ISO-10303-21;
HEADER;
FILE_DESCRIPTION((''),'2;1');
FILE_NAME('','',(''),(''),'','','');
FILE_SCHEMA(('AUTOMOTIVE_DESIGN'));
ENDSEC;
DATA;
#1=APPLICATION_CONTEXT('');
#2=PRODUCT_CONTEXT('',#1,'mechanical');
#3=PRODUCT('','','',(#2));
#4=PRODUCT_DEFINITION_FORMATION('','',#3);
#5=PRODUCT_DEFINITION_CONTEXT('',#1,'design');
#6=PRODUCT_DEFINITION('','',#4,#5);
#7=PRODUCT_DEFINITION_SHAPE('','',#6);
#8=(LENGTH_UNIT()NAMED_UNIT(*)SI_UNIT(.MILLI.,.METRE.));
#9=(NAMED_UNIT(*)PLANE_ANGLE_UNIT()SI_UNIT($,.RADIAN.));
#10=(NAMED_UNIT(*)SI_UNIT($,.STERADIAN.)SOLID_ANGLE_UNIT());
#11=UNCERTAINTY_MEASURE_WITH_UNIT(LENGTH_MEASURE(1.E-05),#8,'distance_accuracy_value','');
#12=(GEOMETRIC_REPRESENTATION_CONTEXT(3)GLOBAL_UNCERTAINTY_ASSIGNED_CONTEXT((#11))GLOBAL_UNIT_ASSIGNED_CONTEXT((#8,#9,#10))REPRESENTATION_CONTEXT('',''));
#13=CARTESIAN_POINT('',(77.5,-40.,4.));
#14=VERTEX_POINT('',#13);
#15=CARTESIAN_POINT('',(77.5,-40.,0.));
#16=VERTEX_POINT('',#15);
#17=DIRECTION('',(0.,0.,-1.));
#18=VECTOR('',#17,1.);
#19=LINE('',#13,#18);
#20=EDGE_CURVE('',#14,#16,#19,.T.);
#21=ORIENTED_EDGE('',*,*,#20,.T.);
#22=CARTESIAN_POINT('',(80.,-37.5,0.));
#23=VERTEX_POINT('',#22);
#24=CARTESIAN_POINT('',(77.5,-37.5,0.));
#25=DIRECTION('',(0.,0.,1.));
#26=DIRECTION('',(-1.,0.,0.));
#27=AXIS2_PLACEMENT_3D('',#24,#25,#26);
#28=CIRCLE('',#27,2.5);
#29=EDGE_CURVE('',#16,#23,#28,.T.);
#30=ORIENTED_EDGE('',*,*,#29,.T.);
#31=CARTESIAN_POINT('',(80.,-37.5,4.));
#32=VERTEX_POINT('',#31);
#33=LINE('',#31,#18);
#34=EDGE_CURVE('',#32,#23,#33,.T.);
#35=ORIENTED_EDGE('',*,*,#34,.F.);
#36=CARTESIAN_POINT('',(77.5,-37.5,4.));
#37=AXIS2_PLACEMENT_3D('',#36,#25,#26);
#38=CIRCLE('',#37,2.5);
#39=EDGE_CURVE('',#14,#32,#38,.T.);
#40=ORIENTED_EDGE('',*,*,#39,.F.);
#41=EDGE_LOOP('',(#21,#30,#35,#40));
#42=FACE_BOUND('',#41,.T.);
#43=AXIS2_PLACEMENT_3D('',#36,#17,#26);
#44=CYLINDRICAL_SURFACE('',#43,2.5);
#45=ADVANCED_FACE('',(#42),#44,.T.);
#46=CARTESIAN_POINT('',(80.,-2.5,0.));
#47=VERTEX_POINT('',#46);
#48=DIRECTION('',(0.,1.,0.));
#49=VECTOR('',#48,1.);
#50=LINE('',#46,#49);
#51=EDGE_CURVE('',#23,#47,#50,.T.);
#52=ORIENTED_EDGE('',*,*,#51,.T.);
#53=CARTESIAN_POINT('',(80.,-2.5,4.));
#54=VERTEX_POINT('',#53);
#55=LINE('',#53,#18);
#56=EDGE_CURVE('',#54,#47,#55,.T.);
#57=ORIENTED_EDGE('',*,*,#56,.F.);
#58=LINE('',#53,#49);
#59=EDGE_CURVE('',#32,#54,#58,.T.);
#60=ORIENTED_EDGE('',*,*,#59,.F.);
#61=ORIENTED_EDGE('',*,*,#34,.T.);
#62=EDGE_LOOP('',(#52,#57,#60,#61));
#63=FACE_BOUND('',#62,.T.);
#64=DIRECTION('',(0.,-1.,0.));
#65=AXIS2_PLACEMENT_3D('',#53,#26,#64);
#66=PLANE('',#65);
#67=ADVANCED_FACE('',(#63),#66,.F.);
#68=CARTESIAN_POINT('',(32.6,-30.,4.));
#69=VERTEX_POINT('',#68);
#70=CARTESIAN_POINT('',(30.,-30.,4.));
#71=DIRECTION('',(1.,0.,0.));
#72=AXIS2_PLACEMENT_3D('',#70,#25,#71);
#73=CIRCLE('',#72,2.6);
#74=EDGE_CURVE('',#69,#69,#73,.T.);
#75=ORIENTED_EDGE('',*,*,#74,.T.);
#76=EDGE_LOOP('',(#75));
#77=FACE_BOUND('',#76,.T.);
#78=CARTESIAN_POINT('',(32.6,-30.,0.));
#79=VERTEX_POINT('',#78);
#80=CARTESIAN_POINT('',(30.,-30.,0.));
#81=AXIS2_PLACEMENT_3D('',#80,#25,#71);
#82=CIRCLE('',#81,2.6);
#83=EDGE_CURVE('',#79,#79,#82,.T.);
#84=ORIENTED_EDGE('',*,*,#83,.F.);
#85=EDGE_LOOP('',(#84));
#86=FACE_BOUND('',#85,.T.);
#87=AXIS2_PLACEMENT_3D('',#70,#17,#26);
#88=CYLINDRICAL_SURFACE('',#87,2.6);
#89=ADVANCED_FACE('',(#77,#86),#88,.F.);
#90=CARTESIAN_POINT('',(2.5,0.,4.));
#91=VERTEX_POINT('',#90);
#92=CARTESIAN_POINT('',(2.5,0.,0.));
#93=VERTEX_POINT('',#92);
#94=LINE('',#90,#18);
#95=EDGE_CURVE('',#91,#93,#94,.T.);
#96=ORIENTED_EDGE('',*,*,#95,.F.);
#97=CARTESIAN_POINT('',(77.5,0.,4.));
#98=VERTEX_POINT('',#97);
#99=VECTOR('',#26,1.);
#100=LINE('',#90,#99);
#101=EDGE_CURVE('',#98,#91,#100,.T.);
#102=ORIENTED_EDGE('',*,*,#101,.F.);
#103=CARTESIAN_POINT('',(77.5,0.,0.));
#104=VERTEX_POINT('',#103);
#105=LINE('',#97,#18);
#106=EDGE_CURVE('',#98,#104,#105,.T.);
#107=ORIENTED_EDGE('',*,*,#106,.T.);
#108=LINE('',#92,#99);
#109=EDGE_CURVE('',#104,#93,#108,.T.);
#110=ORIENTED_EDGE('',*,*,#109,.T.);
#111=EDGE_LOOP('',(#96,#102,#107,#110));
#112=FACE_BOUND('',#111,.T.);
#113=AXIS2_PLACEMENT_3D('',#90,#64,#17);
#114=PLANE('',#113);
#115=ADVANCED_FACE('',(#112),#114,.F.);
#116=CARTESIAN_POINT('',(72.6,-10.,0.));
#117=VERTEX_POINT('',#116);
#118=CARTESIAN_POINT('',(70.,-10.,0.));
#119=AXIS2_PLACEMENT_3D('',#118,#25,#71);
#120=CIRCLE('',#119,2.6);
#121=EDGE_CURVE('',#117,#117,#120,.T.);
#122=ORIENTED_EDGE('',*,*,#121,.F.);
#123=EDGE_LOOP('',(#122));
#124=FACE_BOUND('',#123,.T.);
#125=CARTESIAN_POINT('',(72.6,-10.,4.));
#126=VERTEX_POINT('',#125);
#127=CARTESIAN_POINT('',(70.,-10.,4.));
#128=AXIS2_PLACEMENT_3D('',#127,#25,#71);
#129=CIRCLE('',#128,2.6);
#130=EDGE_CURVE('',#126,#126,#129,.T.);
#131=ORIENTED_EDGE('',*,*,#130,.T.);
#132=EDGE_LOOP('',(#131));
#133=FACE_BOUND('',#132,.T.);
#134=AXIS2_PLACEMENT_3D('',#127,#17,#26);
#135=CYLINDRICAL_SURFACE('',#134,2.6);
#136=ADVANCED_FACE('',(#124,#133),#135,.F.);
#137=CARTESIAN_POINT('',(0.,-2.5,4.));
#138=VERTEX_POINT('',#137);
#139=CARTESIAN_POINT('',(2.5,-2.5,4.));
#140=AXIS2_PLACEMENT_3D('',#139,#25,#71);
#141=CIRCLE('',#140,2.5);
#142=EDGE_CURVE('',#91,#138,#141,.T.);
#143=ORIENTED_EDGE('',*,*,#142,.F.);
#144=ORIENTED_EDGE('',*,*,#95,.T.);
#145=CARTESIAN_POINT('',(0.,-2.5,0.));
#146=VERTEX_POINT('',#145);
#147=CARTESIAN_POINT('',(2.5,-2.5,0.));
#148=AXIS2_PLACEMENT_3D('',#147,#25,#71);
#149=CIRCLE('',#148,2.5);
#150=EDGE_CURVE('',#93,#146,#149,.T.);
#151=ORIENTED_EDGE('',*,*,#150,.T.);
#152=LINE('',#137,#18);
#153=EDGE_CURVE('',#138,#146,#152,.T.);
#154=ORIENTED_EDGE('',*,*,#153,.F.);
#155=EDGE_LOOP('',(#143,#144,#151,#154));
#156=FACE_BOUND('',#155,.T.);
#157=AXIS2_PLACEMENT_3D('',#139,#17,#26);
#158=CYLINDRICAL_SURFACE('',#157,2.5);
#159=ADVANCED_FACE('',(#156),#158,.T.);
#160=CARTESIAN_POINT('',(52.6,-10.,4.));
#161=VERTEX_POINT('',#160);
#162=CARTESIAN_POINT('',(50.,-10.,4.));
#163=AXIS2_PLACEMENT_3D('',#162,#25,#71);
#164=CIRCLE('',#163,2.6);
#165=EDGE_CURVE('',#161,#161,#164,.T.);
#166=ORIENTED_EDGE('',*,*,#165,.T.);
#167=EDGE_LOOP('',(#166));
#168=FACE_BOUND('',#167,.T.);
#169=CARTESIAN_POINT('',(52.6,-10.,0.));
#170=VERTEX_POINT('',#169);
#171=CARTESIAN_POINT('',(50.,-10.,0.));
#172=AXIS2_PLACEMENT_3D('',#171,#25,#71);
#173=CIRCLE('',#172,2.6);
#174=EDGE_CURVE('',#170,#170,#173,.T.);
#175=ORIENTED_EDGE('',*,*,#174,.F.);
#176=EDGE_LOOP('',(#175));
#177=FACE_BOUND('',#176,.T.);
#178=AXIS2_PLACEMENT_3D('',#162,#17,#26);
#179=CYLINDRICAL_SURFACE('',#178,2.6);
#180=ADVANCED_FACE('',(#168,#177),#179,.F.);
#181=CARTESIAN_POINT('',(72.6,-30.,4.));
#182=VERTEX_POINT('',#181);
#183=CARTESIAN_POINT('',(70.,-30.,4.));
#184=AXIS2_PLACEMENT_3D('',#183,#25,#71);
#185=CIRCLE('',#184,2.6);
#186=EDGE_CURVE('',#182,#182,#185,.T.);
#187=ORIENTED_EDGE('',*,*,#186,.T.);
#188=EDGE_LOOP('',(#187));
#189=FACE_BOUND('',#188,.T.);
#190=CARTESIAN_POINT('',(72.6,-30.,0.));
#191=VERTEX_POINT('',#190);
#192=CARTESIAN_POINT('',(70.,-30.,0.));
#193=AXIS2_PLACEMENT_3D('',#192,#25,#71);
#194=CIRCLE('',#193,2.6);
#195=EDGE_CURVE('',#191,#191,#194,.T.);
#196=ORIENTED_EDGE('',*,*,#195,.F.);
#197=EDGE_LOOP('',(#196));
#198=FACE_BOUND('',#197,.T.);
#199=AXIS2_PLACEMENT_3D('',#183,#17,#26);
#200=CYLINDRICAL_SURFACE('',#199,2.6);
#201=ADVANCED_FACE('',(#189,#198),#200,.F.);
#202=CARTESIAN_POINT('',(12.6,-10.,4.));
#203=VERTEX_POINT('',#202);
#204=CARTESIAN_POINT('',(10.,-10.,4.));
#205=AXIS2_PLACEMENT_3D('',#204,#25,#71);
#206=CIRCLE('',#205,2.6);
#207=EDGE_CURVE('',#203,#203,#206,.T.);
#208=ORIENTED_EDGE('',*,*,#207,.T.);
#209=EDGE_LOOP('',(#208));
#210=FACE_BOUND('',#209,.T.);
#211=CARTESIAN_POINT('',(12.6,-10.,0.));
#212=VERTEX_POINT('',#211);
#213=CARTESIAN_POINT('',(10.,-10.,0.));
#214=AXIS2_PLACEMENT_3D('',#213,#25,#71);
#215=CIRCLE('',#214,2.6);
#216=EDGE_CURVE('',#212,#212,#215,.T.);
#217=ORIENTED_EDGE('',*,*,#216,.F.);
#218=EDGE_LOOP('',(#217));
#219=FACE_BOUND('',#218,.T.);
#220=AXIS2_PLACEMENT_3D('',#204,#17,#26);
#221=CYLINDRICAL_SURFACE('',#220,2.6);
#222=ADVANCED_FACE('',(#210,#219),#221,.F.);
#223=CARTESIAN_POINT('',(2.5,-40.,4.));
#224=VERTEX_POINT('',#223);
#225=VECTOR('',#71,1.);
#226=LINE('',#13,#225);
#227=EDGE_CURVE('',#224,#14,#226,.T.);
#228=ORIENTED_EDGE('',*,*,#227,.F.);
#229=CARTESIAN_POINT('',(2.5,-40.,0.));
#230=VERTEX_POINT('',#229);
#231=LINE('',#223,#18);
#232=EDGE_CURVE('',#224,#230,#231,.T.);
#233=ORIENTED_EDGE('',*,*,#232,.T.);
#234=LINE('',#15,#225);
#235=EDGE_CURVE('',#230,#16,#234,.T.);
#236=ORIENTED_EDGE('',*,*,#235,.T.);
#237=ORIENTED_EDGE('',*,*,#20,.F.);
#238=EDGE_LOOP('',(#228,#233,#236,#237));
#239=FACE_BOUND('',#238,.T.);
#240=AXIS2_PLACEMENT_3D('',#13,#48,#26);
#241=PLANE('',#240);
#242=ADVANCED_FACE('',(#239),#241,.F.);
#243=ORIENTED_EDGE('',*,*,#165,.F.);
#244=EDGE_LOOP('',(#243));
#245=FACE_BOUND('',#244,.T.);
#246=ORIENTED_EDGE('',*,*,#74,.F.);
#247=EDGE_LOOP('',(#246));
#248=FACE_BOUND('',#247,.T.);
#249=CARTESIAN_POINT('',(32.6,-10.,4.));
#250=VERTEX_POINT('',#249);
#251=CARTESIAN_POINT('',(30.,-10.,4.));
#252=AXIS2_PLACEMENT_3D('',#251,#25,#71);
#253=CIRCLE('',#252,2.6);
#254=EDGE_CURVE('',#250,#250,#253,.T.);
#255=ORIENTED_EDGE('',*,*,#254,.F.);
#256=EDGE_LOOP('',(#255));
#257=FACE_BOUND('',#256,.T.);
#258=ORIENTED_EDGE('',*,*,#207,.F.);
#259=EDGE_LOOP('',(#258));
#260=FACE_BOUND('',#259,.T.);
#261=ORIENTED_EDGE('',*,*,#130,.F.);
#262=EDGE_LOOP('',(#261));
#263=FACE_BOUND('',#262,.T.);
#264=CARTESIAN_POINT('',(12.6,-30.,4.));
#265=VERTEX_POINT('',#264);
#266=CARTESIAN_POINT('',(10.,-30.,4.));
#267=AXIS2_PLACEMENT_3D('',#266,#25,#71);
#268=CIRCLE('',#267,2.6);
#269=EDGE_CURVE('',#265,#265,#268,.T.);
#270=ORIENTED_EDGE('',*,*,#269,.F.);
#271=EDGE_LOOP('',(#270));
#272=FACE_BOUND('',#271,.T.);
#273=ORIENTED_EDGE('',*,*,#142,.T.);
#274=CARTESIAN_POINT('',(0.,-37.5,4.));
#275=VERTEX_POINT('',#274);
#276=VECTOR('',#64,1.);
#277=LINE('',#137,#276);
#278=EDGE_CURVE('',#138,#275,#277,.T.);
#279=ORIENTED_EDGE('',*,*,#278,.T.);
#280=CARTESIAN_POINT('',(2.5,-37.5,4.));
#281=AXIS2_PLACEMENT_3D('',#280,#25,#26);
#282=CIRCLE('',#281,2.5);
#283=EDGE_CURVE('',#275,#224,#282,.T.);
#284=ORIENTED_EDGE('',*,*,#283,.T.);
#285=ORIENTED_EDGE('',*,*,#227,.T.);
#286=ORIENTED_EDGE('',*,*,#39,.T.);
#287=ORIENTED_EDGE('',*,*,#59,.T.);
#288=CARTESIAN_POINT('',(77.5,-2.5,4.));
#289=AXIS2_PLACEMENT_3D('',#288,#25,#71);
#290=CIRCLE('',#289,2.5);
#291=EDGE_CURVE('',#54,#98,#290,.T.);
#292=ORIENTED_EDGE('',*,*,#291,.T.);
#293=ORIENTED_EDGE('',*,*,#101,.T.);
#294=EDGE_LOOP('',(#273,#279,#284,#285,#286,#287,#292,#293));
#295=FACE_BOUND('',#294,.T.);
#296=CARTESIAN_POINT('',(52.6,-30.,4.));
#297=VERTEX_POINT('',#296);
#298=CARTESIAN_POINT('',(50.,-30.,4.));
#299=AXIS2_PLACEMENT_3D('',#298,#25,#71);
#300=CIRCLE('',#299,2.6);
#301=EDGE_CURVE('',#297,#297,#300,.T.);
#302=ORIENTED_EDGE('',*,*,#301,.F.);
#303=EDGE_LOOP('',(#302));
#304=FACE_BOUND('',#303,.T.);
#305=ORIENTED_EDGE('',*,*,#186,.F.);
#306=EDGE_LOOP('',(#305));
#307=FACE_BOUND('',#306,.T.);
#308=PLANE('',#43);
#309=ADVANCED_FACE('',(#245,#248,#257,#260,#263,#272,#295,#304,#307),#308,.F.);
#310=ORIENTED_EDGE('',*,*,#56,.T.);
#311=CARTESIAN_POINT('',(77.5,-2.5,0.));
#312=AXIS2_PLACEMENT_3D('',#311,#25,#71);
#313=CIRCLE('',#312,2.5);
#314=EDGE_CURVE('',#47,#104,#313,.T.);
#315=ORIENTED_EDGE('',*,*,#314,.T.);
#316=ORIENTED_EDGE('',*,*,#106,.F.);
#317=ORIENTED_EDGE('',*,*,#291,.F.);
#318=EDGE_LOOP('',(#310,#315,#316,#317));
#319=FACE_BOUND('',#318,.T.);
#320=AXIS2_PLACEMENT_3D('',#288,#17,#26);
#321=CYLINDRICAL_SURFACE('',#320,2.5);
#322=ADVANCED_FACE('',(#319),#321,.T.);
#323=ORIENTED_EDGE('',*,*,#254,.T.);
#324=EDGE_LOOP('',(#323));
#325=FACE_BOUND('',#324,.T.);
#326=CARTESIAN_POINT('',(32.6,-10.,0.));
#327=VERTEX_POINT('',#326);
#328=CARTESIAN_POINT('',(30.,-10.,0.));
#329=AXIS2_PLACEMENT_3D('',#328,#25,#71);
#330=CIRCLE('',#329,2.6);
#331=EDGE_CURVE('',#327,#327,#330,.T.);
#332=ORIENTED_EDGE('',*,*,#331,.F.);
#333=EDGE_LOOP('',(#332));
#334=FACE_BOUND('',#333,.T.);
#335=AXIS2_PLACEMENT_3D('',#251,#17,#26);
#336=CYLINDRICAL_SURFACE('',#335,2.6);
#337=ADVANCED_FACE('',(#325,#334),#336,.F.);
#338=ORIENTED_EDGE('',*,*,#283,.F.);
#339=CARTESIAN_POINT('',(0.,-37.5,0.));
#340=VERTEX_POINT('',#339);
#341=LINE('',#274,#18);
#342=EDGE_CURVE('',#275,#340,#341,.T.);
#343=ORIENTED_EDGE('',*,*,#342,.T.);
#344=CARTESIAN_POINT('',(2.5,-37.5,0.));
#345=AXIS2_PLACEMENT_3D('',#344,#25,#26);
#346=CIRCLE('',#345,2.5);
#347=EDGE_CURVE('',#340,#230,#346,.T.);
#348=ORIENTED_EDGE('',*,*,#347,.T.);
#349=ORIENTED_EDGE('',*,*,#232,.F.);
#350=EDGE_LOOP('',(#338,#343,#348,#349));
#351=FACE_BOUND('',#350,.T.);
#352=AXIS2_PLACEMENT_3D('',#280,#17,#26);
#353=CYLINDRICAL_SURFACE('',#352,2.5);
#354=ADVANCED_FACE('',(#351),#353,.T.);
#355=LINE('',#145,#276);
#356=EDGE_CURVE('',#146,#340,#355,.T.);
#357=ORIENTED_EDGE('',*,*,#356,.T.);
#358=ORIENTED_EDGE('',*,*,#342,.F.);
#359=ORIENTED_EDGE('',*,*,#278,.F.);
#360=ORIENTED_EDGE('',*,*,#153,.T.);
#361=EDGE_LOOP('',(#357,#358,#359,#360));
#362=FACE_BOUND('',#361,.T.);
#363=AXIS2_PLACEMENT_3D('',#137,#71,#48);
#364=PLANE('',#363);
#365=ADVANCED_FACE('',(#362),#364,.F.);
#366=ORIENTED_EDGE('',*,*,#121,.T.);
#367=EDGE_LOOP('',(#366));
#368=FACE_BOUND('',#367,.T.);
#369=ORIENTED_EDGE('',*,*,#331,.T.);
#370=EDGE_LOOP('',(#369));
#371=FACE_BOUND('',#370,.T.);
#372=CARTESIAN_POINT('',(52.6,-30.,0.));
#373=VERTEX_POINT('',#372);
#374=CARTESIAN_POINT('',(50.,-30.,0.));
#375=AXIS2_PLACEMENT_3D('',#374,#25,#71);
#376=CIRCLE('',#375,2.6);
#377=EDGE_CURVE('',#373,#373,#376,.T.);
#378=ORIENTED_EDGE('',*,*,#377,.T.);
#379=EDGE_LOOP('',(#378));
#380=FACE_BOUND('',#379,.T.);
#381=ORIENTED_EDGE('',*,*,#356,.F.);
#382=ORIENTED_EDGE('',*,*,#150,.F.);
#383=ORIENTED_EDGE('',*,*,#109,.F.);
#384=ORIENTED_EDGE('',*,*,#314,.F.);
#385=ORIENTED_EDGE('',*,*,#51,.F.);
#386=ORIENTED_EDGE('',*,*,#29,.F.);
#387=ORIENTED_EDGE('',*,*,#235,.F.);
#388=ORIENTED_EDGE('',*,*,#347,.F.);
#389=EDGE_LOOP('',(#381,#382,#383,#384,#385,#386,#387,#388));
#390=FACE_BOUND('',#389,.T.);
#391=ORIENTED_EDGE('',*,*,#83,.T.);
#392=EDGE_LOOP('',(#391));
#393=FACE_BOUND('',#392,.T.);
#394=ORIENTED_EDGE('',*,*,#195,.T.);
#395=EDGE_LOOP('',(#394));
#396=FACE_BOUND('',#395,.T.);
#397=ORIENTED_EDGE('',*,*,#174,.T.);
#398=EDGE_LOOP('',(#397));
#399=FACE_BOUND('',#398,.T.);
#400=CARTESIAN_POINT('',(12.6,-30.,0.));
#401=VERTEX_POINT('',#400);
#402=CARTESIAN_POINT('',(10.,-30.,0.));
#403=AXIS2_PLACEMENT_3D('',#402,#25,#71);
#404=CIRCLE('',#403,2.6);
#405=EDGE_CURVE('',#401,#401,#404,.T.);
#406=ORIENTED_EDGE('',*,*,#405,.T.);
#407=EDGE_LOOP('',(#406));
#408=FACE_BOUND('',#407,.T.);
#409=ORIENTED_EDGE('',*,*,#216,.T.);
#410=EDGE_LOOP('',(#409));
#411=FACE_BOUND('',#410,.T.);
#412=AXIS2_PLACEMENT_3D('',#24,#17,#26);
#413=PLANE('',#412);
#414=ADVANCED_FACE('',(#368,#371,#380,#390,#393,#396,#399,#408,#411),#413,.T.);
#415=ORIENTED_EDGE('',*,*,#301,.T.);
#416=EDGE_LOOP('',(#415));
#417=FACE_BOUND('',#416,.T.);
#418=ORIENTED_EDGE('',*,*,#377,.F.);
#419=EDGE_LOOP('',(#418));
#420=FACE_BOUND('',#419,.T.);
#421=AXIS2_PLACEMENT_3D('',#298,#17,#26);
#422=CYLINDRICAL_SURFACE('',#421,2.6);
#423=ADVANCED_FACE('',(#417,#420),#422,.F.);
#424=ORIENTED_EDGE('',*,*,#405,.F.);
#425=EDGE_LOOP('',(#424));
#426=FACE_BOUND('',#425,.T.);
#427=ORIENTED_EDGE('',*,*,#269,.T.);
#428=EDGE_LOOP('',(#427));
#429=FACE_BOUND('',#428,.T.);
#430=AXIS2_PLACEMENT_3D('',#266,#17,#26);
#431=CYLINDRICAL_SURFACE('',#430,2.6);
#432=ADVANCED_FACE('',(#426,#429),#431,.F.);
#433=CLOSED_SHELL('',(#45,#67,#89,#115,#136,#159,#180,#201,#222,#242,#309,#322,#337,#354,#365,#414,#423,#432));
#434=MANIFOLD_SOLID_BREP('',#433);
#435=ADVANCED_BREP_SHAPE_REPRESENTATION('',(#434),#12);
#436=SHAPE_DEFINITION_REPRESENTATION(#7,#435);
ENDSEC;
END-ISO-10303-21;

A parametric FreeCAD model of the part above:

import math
import FreeCAD as App
import Part
import Sketcher
from FreeCAD import Vector

doc = App.newDocument("Part")
body = doc.addObject("PartDesign::Body", "Body")

# Sketch on XY plane
sketch1 = doc.addObject("Sketcher::SketchObject", "Sketch")
body.addObject(sketch1)
sketch1.AttachmentSupport = (doc.XY_Plane, [""])
sketch1.MapMode = "FlatFace"
sketch1.addGeometry(Part.LineSegment(Vector(77.5, 0, 0), Vector(2.5, 0, 0)), False)
sketch1.addGeometry(Part.ArcOfCircle(Part.Circle(Vector(2.5, -2.5, 0), Vector(0, 0, 1), 2.5), math.radians(90), math.radians(180)), False)
sketch1.addGeometry(Part.LineSegment(Vector(0, -2.5, 0), Vector(0, -37.5, 0)), False)
sketch1.addGeometry(Part.ArcOfCircle(Part.Circle(Vector(2.5, -37.5, 0), Vector(0, 0, 1), 2.5), math.radians(180), math.radians(270)), False)
sketch1.addGeometry(Part.LineSegment(Vector(2.5, -40, 0), Vector(77.5, -40, 0)), False)
sketch1.addGeometry(Part.ArcOfCircle(Part.Circle(Vector(77.5, -37.5, 0), Vector(0, 0, 1), 2.5), math.radians(-90), math.radians(0)), False)
sketch1.addGeometry(Part.LineSegment(Vector(80, -37.5, 0), Vector(80, -2.5, 0)), False)
sketch1.addGeometry(Part.ArcOfCircle(Part.Circle(Vector(77.5, -2.5, 0), Vector(0, 0, 1), 2.5), math.radians(0), math.radians(90)), False)
sketch1.addGeometry(Part.Circle(Vector(70, -30, 0), Vector(0, 0, 1), 2.6), False)
sketch1.addGeometry(Part.Circle(Vector(50, -30, 0), Vector(0, 0, 1), 2.6), False)
sketch1.addGeometry(Part.Circle(Vector(30, -30, 0), Vector(0, 0, 1), 2.6), False)
sketch1.addGeometry(Part.Circle(Vector(10, -30, 0), Vector(0, 0, 1), 2.6), False)
sketch1.addGeometry(Part.Circle(Vector(70, -10, 0), Vector(0, 0, 1), 2.6), False)
sketch1.addGeometry(Part.Circle(Vector(50, -10, 0), Vector(0, 0, 1), 2.6), False)
sketch1.addGeometry(Part.Circle(Vector(30, -10, 0), Vector(0, 0, 1), 2.6), False)
sketch1.addGeometry(Part.Circle(Vector(10, -10, 0), Vector(0, 0, 1), 2.6), False)
sketch1.addConstraint(Sketcher.Constraint("Tangent", 0, 2, 1, 1))
sketch1.addConstraint(Sketcher.Constraint("Tangent", 1, 2, 2, 1))
sketch1.addConstraint(Sketcher.Constraint("Tangent", 2, 2, 3, 1))
sketch1.addConstraint(Sketcher.Constraint("Tangent", 3, 2, 4, 1))
sketch1.addConstraint(Sketcher.Constraint("Tangent", 4, 2, 5, 1))
sketch1.addConstraint(Sketcher.Constraint("Tangent", 5, 2, 6, 1))
sketch1.addConstraint(Sketcher.Constraint("Tangent", 6, 2, 7, 1))
sketch1.addConstraint(Sketcher.Constraint("Tangent", 7, 2, 0, 1))
sketch1.addConstraint(Sketcher.Constraint("Horizontal", 0))
sketch1.addConstraint(Sketcher.Constraint("Vertical", 2))
sketch1.addConstraint(Sketcher.Constraint("Horizontal", 4))
sketch1.addConstraint(Sketcher.Constraint("Vertical", 6))
sketch1.addConstraint(Sketcher.Constraint("Equal", 1, 3))
sketch1.addConstraint(Sketcher.Constraint("Equal", 3, 5))
sketch1.addConstraint(Sketcher.Constraint("Equal", 5, 7))
sketch1.addConstraint(Sketcher.Constraint("Equal", 8, 9))
sketch1.addConstraint(Sketcher.Constraint("Equal", 9, 10))
sketch1.addConstraint(Sketcher.Constraint("Equal", 10, 11))
sketch1.addConstraint(Sketcher.Constraint("Equal", 11, 12))
sketch1.addConstraint(Sketcher.Constraint("Equal", 12, 13))
sketch1.addConstraint(Sketcher.Constraint("Equal", 13, 14))
sketch1.addConstraint(Sketcher.Constraint("Equal", 14, 15))
sketch1.addConstraint(Sketcher.Constraint("PointOnObject", 0, 2, -1))
sketch1.addConstraint(Sketcher.Constraint("PointOnObject", 1, 2, -2))
sketch1.addConstraint(Sketcher.Constraint("Horizontal", 8, 3, 9, 3))
sketch1.addConstraint(Sketcher.Constraint("Horizontal", 9, 3, 10, 3))
sketch1.addConstraint(Sketcher.Constraint("Horizontal", 10, 3, 11, 3))
sketch1.addConstraint(Sketcher.Constraint("Horizontal", 12, 3, 13, 3))
sketch1.addConstraint(Sketcher.Constraint("Horizontal", 13, 3, 14, 3))
sketch1.addConstraint(Sketcher.Constraint("Horizontal", 14, 3, 15, 3))
sketch1.addConstraint(Sketcher.Constraint("Vertical", 8, 3, 12, 3))
sketch1.addConstraint(Sketcher.Constraint("Vertical", 9, 3, 13, 3))
sketch1.addConstraint(Sketcher.Constraint("Vertical", 10, 3, 14, 3))
sketch1.addConstraint(Sketcher.Constraint("Vertical", 11, 3, 15, 3))
sketch1.addConstraint(Sketcher.Constraint("Diameter", 8, 5.2))
sketch1.addConstraint(Sketcher.Constraint("Radius", 1, 2.5))
sketch1.addConstraint(Sketcher.Constraint("DistanceX", 0, 2, 0, 1, 75.0))
sketch1.addConstraint(Sketcher.Constraint("DistanceY", 2, 2, 2, 1, 35.0))
sketch1.addConstraint(Sketcher.Constraint("DistanceX", -1, 1, 8, 3, 70.0))
sketch1.addConstraint(Sketcher.Constraint("DistanceY", 8, 3, -1, 1, 30.0))
sketch1.addConstraint(Sketcher.Constraint("DistanceX", -1, 1, 9, 3, 50.0))
sketch1.addConstraint(Sketcher.Constraint("DistanceX", -1, 1, 10, 3, 30.0))
sketch1.addConstraint(Sketcher.Constraint("DistanceX", -1, 1, 11, 3, 10.0))
sketch1.addConstraint(Sketcher.Constraint("DistanceY", 12, 3, -1, 1, 10.0))
pad1 = doc.addObject("PartDesign::Pad", "Pad")
body.addObject(pad1)
pad1.Profile = sketch1
pad1.Length = 4

doc.recompute()
